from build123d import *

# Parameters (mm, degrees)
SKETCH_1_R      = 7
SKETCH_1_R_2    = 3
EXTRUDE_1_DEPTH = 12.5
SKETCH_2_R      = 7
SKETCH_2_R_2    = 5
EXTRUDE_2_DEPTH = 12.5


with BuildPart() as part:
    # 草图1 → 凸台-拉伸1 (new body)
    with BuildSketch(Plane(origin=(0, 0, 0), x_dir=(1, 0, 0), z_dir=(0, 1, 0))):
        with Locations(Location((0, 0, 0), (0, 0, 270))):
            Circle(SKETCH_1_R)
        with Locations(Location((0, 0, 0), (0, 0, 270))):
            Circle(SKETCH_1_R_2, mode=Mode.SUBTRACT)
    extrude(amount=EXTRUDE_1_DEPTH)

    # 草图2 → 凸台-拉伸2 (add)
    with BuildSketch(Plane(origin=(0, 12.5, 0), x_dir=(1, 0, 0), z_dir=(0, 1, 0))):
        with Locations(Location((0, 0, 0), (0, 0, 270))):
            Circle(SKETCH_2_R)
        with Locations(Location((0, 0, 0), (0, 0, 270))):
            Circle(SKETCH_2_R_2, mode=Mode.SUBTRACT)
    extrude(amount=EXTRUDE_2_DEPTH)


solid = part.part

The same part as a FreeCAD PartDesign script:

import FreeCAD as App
import Part
import Sketcher
from FreeCAD import Vector
Q = App.Units.Quantity

doc = App.newDocument("Part")
params = doc.addObject("Spreadsheet::Sheet", "Params")
for row, (alias, value) in enumerate([
    ("sketch1_diameter", "14 mm"),
    ("sketch1_diameter2", "6 mm"),
    ("pad1_length", "12.5 mm"),
    ("sketch2_diameter", "14 mm"),
    ("sketch2_diameter2", "10 mm"),
    ("pad2_length", "12.5 mm"),
], start=1):
    params.set(f"A{row}", alias)
    params.set(f"B{row}", "=" + value)
    params.setAlias(f"B{row}", alias)

body = doc.addObject("PartDesign::Body", "Body")

sketch1 = body.newObject("Sketcher::SketchObject", "Sketch")
sketch1.AttachmentSupport = (doc.getObject("XZ_Plane"), [""])
sketch1.MapMode = "FlatFace"
sketch1.addGeometry([
    Part.Circle(Vector(0, 0, 0), Vector(0, 0, 1), 7),
    Part.Circle(Vector(0, 0, 0), Vector(0, 0, 1), 3),
], False)
sketch1.addConstraint([
    Sketcher.Constraint("Coincident", 0, 3, -1, 1),
    Sketcher.Constraint("Coincident", 1, 3, -1, 1),
    Sketcher.Constraint("Diameter", 0, Q("14 mm")),
    Sketcher.Constraint("Diameter", 1, Q("6 mm")),
])
sketch1.setExpression("Constraints[2]", "Params.sketch1_diameter")
sketch1.setExpression("Constraints[3]", "Params.sketch1_diameter2")
pad1 = body.newObject("PartDesign::Pad", "Pad")
pad1.Profile = sketch1
pad1.setExpression("Length", "Params.pad1_length")
pad1.Reversed = True

sketch2 = body.newObject("Sketcher::SketchObject", "Sketch001")
sketch2.AttachmentSupport = (doc.getObject("XZ_Plane"), [""])
sketch2.MapMode = "FlatFace"
sketch2.AttachmentOffset = App.Placement(Vector(0, 0, -12.5), App.Rotation())
sketch2.addGeometry([
    Part.Circle(Vector(0, 0, 0), Vector(0, 0, 1), 7),
    Part.Circle(Vector(0, 0, 0), Vector(0, 0, 1), 5),
], False)
sketch2.addConstraint([
    Sketcher.Constraint("Coincident", 0, 3, -1, 1),
    Sketcher.Constraint("Coincident", 1, 3, -1, 1),
    Sketcher.Constraint("Diameter", 0, Q("14 mm")),
    Sketcher.Constraint("Diameter", 1, Q("10 mm")),
])
sketch2.setExpression("Constraints[2]", "Params.sketch2_diameter")
sketch2.setExpression("Constraints[3]", "Params.sketch2_diameter2")
pad2 = body.newObject("PartDesign::Pad", "Pad001")
pad2.Profile = sketch2
pad2.setExpression("Length", "Params.pad2_length")
pad2.Reversed = True

doc.recompute()
